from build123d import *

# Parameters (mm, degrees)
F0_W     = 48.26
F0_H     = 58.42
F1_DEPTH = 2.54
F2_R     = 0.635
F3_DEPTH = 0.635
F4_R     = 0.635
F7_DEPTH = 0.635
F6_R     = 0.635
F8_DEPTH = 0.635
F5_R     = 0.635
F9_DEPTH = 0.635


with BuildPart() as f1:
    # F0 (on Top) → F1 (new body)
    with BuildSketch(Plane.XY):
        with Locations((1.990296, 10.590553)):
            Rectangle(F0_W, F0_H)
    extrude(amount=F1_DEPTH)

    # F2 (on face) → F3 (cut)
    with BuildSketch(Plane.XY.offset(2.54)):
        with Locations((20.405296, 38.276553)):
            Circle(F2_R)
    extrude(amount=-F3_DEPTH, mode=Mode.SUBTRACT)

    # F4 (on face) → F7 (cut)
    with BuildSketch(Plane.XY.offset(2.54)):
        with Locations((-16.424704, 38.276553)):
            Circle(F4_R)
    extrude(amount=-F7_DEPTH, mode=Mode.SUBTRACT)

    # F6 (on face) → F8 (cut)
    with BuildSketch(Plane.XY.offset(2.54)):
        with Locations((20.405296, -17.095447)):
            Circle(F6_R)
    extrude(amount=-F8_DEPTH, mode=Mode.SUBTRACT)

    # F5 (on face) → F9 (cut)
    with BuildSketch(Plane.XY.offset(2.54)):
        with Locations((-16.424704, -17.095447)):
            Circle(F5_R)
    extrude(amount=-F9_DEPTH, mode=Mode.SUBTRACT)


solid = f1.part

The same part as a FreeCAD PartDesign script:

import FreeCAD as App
import Part
import Sketcher
Q = App.Units.Quantity


def add_polygon(sketch, points):
    """Adds a closed chain of lines whose ends are joined by coincident constraints."""
    first, n = sketch.GeometryCount, len(points)
    for a, b in zip(points, points[1:] + points[:1]):
        sketch.addGeometry(Part.LineSegment(App.Vector(*a, 0), App.Vector(*b, 0)), False)
    for i in range(n):
        sketch.addConstraint(Sketcher.Constraint("Coincident", first + i, 2, first + (i + 1) % n, 1))

doc = App.newDocument("Part")
body = doc.addObject("PartDesign::Body", "Body")

# Sketch on XY plane
sketch1 = body.newObject("Sketcher::SketchObject", "Sketch")
sketch1.AttachmentSupport = (doc.getObject("XY_Plane"), [""])
sketch1.MapMode = "FlatFace"
add_polygon(sketch1, [(-22, 40), (-22, -19), (26, -19), (26, 40)])  # lines 0-3
sketch1.addConstraint(Sketcher.Constraint("Vertical", 0))
sketch1.addConstraint(Sketcher.Constraint("Horizontal", 1))
sketch1.addConstraint(Sketcher.Constraint("Vertical", 2))
sketch1.addConstraint(Sketcher.Constraint("Horizontal", 3))
sketch1.addConstraint(Sketcher.Constraint("DistanceX", 1, 1, 1, 2, Q("1.9 in")))
sketch1.addConstraint(Sketcher.Constraint("DistanceY", 0, 2, 0, 1, Q("2.3 in")))
sketch1.addConstraint(Sketcher.Constraint("DistanceX", 0, 2, -1, 1, Q("22.139704 mm")))
sketch1.addConstraint(Sketcher.Constraint("DistanceY", 0, 2, -1, 1, Q("18.619447 mm")))
pad1 = body.newObject("PartDesign::Pad", "Pad")
pad1.Profile = sketch1
pad1.Length = Q("0.1 in")

# Sketch on XY plane
sketch2 = body.newObject("Sketcher::SketchObject", "Sketch001")
sketch2.AttachmentSupport = (doc.getObject("XY_Plane"), [""])
sketch2.MapMode = "FlatFace"
sketch2.AttachmentOffset = App.Placement(App.Vector(0, 0, 0.1 * 25.4), App.Rotation())
sketch2.addGeometry(Part.Circle(App.Vector(20.4, 38.3, 0), App.Vector(0, 0, 1), 0.6), False)
sketch2.addConstraint(Sketcher.Constraint("Diameter", 0, Q("0.05 in")))
sketch2.addConstraint(Sketcher.Constraint("DistanceX", -1, 1, 0, 3, Q("20.405296 mm")))
sketch2.addConstraint(Sketcher.Constraint("DistanceY", -1, 1, 0, 3, Q("38.276553 mm")))
pocket1 = body.newObject("PartDesign::Pocket", "Pocket")
pocket1.Profile = sketch2
pocket1.Length = Q("0.025 in")

# Sketch on XY plane
sketch3 = body.newObject("Sketcher::SketchObject", "Sketch002")
sketch3.AttachmentSupport = (doc.getObject("XY_Plane"), [""])
sketch3.MapMode = "FlatFace"
sketch3.AttachmentOffset = App.Placement(App.Vector(0, 0, 0.1 * 25.4), App.Rotation())
sketch3.addGeometry(Part.Circle(App.Vector(-16.4, 38.3, 0), App.Vector(0, 0, 1), 0.6), False)
sketch3.addConstraint(Sketcher.Constraint("Diameter", 0, Q("0.05 in")))
sketch3.addConstraint(Sketcher.Constraint("DistanceX", 0, 3, -1, 1, Q("16.424704 mm")))
sketch3.addConstraint(Sketcher.Constraint("DistanceY", -1, 1, 0, 3, Q("38.276553 mm")))
pocket2 = body.newObject("PartDesign::Pocket", "Pocket001")
pocket2.Profile = sketch3
pocket2.Length = Q("0.025 in")

# Sketch on XY plane
sketch4 = body.newObject("Sketcher::SketchObject", "Sketch003")
sketch4.AttachmentSupport = (doc.getObject("XY_Plane"), [""])
sketch4.MapMode = "FlatFace"
sketch4.AttachmentOffset = App.Placement(App.Vector(0, 0, 0.1 * 25.4), App.Rotation())
sketch4.addGeometry(Part.Circle(App.Vector(20.4, -17.1, 0), App.Vector(0, 0, 1), 0.6), False)
sketch4.addConstraint(Sketcher.Constraint("Diameter", 0, Q("0.05 in")))
sketch4.addConstraint(Sketcher.Constraint("DistanceX", -1, 1, 0, 3, Q("20.405296 mm")))
sketch4.addConstraint(Sketcher.Constraint("DistanceY", 0, 3, -1, 1, Q("17.095447 mm")))
pocket3 = body.newObject("PartDesign::Pocket", "Pocket002")
pocket3.Profile = sketch4
pocket3.Length = Q("0.025 in")

# Sketch on XY plane
sketch5 = body.newObject("Sketcher::SketchObject", "Sketch004")
sketch5.AttachmentSupport = (doc.getObject("XY_Plane"), [""])
sketch5.MapMode = "FlatFace"
sketch5.AttachmentOffset = App.Placement(App.Vector(0, 0, 0.1 * 25.4), App.Rotation())
sketch5.addGeometry(Part.Circle(App.Vector(-16.4, -17.1, 0), App.Vector(0, 0, 1), 0.6), False)
sketch5.addConstraint(Sketcher.Constraint("Diameter", 0, Q("0.05 in")))
sketch5.addConstraint(Sketcher.Constraint("DistanceX", 0, 3, -1, 1, Q("16.424704 mm")))
sketch5.addConstraint(Sketcher.Constraint("DistanceY", 0, 3, -1, 1, Q("17.095447 mm")))
pocket4 = body.newObject("PartDesign::Pocket", "Pocket003")
pocket4.Profile = sketch5
pocket4.Length = Q("0.025 in")

doc.recompute()
